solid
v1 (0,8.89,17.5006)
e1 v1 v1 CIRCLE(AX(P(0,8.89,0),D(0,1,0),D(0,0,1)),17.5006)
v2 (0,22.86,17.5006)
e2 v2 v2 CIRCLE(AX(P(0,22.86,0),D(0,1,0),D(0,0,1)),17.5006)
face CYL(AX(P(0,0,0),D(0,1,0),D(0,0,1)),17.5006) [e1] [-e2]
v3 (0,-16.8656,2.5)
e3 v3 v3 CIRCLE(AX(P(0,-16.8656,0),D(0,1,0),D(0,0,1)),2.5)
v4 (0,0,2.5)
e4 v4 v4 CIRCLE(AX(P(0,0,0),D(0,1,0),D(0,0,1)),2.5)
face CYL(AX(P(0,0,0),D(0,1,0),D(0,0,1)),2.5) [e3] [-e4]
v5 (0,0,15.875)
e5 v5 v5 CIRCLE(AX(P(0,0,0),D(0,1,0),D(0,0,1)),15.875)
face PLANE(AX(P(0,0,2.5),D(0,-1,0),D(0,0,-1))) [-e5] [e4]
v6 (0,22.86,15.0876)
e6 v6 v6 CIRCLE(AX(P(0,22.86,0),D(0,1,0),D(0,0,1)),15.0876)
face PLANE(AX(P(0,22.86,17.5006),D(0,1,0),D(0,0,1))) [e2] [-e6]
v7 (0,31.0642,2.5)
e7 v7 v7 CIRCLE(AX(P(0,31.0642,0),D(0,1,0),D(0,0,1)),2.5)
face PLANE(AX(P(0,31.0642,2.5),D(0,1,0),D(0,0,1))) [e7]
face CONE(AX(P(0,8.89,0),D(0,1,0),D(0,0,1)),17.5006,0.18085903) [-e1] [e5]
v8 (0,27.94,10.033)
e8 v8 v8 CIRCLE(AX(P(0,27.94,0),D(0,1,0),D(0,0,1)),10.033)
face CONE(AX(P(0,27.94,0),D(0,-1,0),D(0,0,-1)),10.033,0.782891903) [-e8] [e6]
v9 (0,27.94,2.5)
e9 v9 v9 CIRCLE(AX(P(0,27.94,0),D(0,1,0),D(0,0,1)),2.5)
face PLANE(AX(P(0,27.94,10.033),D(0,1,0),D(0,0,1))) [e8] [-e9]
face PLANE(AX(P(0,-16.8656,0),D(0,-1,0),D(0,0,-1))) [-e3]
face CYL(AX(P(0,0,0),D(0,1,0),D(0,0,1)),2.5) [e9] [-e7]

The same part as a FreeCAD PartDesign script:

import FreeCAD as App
import Part
import Sketcher

V = App.Vector
Q = App.Units.Quantity


def add_polygon(sketch, points):
    """Adds a closed chain of lines whose ends are joined by coincident constraints."""
    first, n = sketch.GeometryCount, len(points)
    for a, b in zip(points, points[1:] + points[:1]):
        sketch.addGeometry(Part.LineSegment(App.Vector(*a, 0), App.Vector(*b, 0)), False)
    for i in range(n):
        sketch.addConstraint(Sketcher.Constraint("Coincident", first + i, 2, first + (i + 1) % n, 1))

doc = App.newDocument("Part")
params = doc.addObject("Spreadsheet::Sheet", "Params")
for row, (alias, value) in enumerate([
    ("sketch1_width", "0.55 in"),
    ("sketch1_width2", "1.887 in"),
    ("sketch1_width3", "0.123 in"),
    ("sketch1_height", "0.095 in"),
    ("revolution_angle", "360 deg"),
], start=1):
    params.set(f"A{row}", alias)
    params.set(f"B{row}", "=" + value)
    params.setAlias(f"B{row}", alias)

body = doc.addObject("PartDesign::Body", "Body")

# Sketch on YZ plane
sketch1 = body.newObject("Sketcher::SketchObject", "Sketch")
sketch1.AttachmentSupport = (doc.getObject("YZ_Plane"), [""])
sketch1.MapMode = "FlatFace"
add_polygon(sketch1, [(-16.9, 2.5), (-16.9, 0), (31.1, 0), (31.1, 2.5), (27.9, 2.5), (27.9, 10), (22.9, 15.1), (22.9, 17.5), (8.9, 17.5), (0, 15.9), (0, 2.5)])  # lines 0-10
sketch1.addConstraint(Sketcher.Constraint("Vertical", 0))
sketch1.addConstraint(Sketcher.Constraint("Horizontal", 1))
sketch1.addConstraint(Sketcher.Constraint("Vertical", 2))
sketch1.addConstraint(Sketcher.Constraint("Horizontal", 3))
sketch1.addConstraint(Sketcher.Constraint("Vertical", 4))
sketch1.addConstraint(Sketcher.Constraint("Vertical", 6))
sketch1.addConstraint(Sketcher.Constraint("Horizontal", 7))
sketch1.addConstraint(Sketcher.Constraint("Vertical", 9))
sketch1.addConstraint(Sketcher.Constraint("Horizontal", 10))
sketch1.addConstraint(Sketcher.Constraint("PointOnObject", 0, 2, -1))
sketch1.addConstraint(Sketcher.Constraint("PointOnObject", 8, 2, -2))
sketch1.addConstraint(Sketcher.Constraint("Horizontal", 3, 2, 9, 2))
sketch1.addConstraint(Sketcher.Constraint("DistanceX", 7, 2, 7, 1, Q("0.55 in")))
sketch1.addConstraint(Sketcher.Constraint("DistanceX", -1, 1, 3, 2, Q("1.1 in")))
sketch1.addConstraint(Sketcher.Constraint("DistanceX", -1, 1, 5, 2, Q("0.9 in")))
sketch1.addConstraint(Sketcher.Constraint("DistanceX", 1, 1, 1, 2, Q("1.887 in")))
sketch1.addConstraint(Sketcher.Constraint("DistanceX", 3, 2, 3, 1, Q("0.123 in")))
sketch1.addConstraint(Sketcher.Constraint("DistanceY", 6, 1, 6, 2, Q("0.095 in")))
sketch1.addConstraint(Sketcher.Constraint("DistanceY", 4, 2, 8, 2, Q("0.23 in")))
sketch1.addConstraint(Sketcher.Constraint("DistanceY", -1, 1, 4, 2, Q("0.395 in")))
sketch1.addConstraint(Sketcher.Constraint("DistanceY", -1, 1, 5, 2, Q("0.594 in")))
sketch1.addConstraint(Sketcher.Constraint("DistanceY", 0, 2, 0, 1, Q("2.5 mm")))
sketch1.setExpression("Constraints[23]", "Params.sketch1_width")
sketch1.setExpression("Constraints[26]", "Params.sketch1_width2")
sketch1.setExpression("Constraints[27]", "Params.sketch1_width3")
sketch1.setExpression("Constraints[28]", "Params.sketch1_height")
revolution = body.newObject("PartDesign::Revolution", "Revolution")
revolution.Profile = sketch1
revolution.ReferenceAxis = (sketch1, ["H_Axis"])
revolution.setExpression("Angle", "Params.revolution_angle")

doc.recompute()
